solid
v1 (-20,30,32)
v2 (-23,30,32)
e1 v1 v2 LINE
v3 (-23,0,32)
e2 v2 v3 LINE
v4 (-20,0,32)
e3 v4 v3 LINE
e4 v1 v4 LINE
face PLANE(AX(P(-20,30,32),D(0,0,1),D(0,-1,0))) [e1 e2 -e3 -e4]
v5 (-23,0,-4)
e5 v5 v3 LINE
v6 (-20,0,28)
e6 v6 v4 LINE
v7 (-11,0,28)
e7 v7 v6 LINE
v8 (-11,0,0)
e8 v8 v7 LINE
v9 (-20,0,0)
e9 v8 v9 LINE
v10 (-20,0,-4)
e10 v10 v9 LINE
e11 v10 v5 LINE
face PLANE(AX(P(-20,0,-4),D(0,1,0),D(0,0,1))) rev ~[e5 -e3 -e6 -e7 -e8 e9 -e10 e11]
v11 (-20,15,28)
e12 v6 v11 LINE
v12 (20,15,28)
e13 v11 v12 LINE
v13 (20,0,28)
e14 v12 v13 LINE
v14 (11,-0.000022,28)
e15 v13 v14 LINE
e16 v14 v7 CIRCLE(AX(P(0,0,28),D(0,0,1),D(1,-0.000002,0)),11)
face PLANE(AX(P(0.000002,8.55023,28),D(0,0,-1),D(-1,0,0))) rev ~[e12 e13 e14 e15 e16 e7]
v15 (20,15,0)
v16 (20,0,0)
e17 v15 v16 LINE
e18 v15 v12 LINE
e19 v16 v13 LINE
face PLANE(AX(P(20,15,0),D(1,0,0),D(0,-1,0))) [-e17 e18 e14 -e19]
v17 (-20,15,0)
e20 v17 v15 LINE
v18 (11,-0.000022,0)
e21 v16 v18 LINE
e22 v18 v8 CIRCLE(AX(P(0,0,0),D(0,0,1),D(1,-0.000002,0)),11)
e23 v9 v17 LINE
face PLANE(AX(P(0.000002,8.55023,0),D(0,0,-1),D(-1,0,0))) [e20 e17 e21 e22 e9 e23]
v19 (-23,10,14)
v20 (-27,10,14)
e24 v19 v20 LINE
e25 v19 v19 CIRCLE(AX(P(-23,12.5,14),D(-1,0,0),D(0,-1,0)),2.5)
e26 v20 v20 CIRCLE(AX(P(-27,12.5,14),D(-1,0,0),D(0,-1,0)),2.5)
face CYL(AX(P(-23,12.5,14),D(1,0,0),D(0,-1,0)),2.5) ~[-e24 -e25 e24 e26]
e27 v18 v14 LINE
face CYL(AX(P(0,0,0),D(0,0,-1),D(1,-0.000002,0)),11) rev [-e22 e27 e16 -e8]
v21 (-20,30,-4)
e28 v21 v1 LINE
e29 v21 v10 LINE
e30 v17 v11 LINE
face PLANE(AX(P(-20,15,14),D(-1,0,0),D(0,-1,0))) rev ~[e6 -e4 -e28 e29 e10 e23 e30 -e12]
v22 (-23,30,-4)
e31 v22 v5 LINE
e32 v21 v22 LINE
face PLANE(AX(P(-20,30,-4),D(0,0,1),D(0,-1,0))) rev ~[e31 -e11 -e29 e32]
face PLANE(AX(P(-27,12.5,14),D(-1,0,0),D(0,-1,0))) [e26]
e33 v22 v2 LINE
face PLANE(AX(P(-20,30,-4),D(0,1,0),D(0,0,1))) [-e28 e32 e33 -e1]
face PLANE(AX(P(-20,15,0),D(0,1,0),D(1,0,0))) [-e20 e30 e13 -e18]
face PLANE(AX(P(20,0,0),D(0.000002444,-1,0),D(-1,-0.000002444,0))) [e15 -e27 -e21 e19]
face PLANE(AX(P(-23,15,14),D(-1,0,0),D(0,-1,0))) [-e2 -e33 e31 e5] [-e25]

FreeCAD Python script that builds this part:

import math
import FreeCAD as App
import Part
import Sketcher
Q = App.Units.Quantity


def add_polygon(sketch, points):
    """Adds a closed chain of lines whose ends are joined by coincident constraints."""
    first, n = sketch.GeometryCount, len(points)
    for a, b in zip(points, points[1:] + points[:1]):
        sketch.addGeometry(Part.LineSegment(App.Vector(*a, 0), App.Vector(*b, 0)), False)
    for i in range(n):
        sketch.addConstraint(Sketcher.Constraint("Coincident", first + i, 2, first + (i + 1) % n, 1))

doc = App.newDocument("Part")
params = doc.addObject("Spreadsheet::Sheet", "Params")
for row, (alias, value) in enumerate([
    ("sketch1_radius", "11 mm"),
    ("sketch1_width", "40 mm"),
    ("sketch1_height", "15 mm"),
    ("pad1_length", "28 mm"),
    ("sketch2_width", "30 mm"),
    ("sketch2_height", "36 mm"),
    ("pad2_length", "3 mm"),
    ("sketch3_diameter", "5 mm"),
    ("pad3_length", "4 mm"),
], start=1):
    params.set(f"A{row}", alias)
    params.set(f"B{row}", "=" + value)
    params.setAlias(f"B{row}", alias)

body = doc.addObject("PartDesign::Body", "Body")

# Sketch on XY plane
sketch1 = body.newObject("Sketcher::SketchObject", "Sketch")
sketch1.AttachmentSupport = (doc.getObject("XY_Plane"), [""])
sketch1.MapMode = "FlatFace"
sketch1.addGeometry([
    Part.LineSegment(App.Vector(20, 15, 0), App.Vector(-20, 15, 0)),  # 0
    Part.LineSegment(App.Vector(-20, 15, 0), App.Vector(-20, 0, 0)),  # 1
    Part.LineSegment(App.Vector(-20, 0, 0), App.Vector(-11, 0, 0)),  # 2
    Part.ArcOfCircle(Part.Circle(App.Vector(0, 0, 0), App.Vector(0, 0, 1), 11), math.radians(0), math.radians(180)),  # 3
    Part.LineSegment(App.Vector(11, 0, 0), App.Vector(20, 0, 0)),  # 4
    Part.LineSegment(App.Vector(20, 0, 0), App.Vector(20, 15, 0)),  # 5
], False)
sketch1.addConstraint([
    Sketcher.Constraint("Coincident", 0, 2, 1, 1),
    Sketcher.Constraint("Coincident", 1, 2, 2, 1),
    Sketcher.Constraint("Coincident", 2, 2, 3, 2),
    Sketcher.Constraint("Coincident", 3, 1, 4, 1),
    Sketcher.Constraint("Coincident", 4, 2, 5, 1),
    Sketcher.Constraint("Coincident", 5, 2, 0, 1),
    Sketcher.Constraint("Horizontal", 0),
    Sketcher.Constraint("Vertical", 1),
    Sketcher.Constraint("Horizontal", 2),
    Sketcher.Constraint("Vertical", 5),
    Sketcher.Constraint("Coincident", 3, 3, -1, 1),
    Sketcher.Constraint("Symmetric", 1, 2, 4, 2, -1, 1),
    Sketcher.Constraint("PointOnObject", 1, 2, -1),
    Sketcher.Constraint("Radius", 3, Q("11 mm")),
    Sketcher.Constraint("DistanceX", 0, 2, 0, 1, Q("40 mm")),
    Sketcher.Constraint("DistanceY", 1, 2, 1, 1, Q("15 mm")),
    Sketcher.Constraint("DistanceY", 3, 1, 0, 2, Q("15.000022 mm")),
])
sketch1.setExpression("Constraints[13]", "Params.sketch1_radius")
sketch1.setExpression("Constraints[14]", "Params.sketch1_width")
sketch1.setExpression("Constraints[15]", "Params.sketch1_height")
pad1 = body.newObject("PartDesign::Pad", "Pad")
pad1.Profile = sketch1
pad1.setExpression("Length", "Params.pad1_length")

# Sketch on YZ plane
sketch2 = body.newObject("Sketcher::SketchObject", "Sketch001")
sketch2.AttachmentSupport = (doc.getObject("YZ_Plane"), [""])
sketch2.MapMode = "FlatFace"
sketch2.AttachmentOffset = App.Placement(App.Vector(0, 0, -20), App.Rotation())
add_polygon(sketch2, [(30, 32), (30, -4), (0, -4), (0, 32)])  # lines 0-3
sketch2.addConstraint([
    Sketcher.Constraint("Vertical", 0),
    Sketcher.Constraint("Horizontal", 1),
    Sketcher.Constraint("Vertical", 2),
    Sketcher.Constraint("Horizontal", 3),
    Sketcher.Constraint("PointOnObject", 1, 2, -2),
    Sketcher.Constraint("DistanceX", 1, 2, 1, 1, Q("30 mm")),
    Sketcher.Constraint("DistanceY", 0, 2, 0, 1, Q("36 mm")),
    Sketcher.Constraint("DistanceY", 0, 2, -1, 1, Q("4 mm")),
])
sketch2.setExpression("Constraints[9]", "Params.sketch2_width")
sketch2.setExpression("Constraints[10]", "Params.sketch2_height")
pad2 = body.newObject("PartDesign::Pad", "Pad001")
pad2.Profile = sketch2
pad2.setExpression("Length", "Params.pad2_length")
pad2.Reversed = True

# Sketch on YZ plane
sketch3 = body.newObject("Sketcher::SketchObject", "Sketch002")
sketch3.AttachmentSupport = (doc.getObject("YZ_Plane"), [""])
sketch3.MapMode = "FlatFace"
sketch3.AttachmentOffset = App.Placement(App.Vector(0, 0, -23), App.Rotation())
sketch3.addGeometry(Part.Circle(App.Vector(12.5, 14, 0), App.Vector(0, 0, 1), 2.5), False)
sketch3.addConstraint([
    Sketcher.Constraint("Diameter", 0, Q("5 mm")),
    Sketcher.Constraint("DistanceY", -1, 1, 0, 3, Q("14 mm")),
    Sketcher.Constraint("DistanceX", -1, 1, 0, 3, Q("12.5 mm")),
])
sketch3.setExpression("Constraints[0]", "Params.sketch3_diameter")
pad3 = body.newObject("PartDesign::Pad", "Pad002")
pad3.Profile = sketch3
pad3.setExpression("Length", "Params.pad3_length")
pad3.Reversed = True

doc.recompute()
